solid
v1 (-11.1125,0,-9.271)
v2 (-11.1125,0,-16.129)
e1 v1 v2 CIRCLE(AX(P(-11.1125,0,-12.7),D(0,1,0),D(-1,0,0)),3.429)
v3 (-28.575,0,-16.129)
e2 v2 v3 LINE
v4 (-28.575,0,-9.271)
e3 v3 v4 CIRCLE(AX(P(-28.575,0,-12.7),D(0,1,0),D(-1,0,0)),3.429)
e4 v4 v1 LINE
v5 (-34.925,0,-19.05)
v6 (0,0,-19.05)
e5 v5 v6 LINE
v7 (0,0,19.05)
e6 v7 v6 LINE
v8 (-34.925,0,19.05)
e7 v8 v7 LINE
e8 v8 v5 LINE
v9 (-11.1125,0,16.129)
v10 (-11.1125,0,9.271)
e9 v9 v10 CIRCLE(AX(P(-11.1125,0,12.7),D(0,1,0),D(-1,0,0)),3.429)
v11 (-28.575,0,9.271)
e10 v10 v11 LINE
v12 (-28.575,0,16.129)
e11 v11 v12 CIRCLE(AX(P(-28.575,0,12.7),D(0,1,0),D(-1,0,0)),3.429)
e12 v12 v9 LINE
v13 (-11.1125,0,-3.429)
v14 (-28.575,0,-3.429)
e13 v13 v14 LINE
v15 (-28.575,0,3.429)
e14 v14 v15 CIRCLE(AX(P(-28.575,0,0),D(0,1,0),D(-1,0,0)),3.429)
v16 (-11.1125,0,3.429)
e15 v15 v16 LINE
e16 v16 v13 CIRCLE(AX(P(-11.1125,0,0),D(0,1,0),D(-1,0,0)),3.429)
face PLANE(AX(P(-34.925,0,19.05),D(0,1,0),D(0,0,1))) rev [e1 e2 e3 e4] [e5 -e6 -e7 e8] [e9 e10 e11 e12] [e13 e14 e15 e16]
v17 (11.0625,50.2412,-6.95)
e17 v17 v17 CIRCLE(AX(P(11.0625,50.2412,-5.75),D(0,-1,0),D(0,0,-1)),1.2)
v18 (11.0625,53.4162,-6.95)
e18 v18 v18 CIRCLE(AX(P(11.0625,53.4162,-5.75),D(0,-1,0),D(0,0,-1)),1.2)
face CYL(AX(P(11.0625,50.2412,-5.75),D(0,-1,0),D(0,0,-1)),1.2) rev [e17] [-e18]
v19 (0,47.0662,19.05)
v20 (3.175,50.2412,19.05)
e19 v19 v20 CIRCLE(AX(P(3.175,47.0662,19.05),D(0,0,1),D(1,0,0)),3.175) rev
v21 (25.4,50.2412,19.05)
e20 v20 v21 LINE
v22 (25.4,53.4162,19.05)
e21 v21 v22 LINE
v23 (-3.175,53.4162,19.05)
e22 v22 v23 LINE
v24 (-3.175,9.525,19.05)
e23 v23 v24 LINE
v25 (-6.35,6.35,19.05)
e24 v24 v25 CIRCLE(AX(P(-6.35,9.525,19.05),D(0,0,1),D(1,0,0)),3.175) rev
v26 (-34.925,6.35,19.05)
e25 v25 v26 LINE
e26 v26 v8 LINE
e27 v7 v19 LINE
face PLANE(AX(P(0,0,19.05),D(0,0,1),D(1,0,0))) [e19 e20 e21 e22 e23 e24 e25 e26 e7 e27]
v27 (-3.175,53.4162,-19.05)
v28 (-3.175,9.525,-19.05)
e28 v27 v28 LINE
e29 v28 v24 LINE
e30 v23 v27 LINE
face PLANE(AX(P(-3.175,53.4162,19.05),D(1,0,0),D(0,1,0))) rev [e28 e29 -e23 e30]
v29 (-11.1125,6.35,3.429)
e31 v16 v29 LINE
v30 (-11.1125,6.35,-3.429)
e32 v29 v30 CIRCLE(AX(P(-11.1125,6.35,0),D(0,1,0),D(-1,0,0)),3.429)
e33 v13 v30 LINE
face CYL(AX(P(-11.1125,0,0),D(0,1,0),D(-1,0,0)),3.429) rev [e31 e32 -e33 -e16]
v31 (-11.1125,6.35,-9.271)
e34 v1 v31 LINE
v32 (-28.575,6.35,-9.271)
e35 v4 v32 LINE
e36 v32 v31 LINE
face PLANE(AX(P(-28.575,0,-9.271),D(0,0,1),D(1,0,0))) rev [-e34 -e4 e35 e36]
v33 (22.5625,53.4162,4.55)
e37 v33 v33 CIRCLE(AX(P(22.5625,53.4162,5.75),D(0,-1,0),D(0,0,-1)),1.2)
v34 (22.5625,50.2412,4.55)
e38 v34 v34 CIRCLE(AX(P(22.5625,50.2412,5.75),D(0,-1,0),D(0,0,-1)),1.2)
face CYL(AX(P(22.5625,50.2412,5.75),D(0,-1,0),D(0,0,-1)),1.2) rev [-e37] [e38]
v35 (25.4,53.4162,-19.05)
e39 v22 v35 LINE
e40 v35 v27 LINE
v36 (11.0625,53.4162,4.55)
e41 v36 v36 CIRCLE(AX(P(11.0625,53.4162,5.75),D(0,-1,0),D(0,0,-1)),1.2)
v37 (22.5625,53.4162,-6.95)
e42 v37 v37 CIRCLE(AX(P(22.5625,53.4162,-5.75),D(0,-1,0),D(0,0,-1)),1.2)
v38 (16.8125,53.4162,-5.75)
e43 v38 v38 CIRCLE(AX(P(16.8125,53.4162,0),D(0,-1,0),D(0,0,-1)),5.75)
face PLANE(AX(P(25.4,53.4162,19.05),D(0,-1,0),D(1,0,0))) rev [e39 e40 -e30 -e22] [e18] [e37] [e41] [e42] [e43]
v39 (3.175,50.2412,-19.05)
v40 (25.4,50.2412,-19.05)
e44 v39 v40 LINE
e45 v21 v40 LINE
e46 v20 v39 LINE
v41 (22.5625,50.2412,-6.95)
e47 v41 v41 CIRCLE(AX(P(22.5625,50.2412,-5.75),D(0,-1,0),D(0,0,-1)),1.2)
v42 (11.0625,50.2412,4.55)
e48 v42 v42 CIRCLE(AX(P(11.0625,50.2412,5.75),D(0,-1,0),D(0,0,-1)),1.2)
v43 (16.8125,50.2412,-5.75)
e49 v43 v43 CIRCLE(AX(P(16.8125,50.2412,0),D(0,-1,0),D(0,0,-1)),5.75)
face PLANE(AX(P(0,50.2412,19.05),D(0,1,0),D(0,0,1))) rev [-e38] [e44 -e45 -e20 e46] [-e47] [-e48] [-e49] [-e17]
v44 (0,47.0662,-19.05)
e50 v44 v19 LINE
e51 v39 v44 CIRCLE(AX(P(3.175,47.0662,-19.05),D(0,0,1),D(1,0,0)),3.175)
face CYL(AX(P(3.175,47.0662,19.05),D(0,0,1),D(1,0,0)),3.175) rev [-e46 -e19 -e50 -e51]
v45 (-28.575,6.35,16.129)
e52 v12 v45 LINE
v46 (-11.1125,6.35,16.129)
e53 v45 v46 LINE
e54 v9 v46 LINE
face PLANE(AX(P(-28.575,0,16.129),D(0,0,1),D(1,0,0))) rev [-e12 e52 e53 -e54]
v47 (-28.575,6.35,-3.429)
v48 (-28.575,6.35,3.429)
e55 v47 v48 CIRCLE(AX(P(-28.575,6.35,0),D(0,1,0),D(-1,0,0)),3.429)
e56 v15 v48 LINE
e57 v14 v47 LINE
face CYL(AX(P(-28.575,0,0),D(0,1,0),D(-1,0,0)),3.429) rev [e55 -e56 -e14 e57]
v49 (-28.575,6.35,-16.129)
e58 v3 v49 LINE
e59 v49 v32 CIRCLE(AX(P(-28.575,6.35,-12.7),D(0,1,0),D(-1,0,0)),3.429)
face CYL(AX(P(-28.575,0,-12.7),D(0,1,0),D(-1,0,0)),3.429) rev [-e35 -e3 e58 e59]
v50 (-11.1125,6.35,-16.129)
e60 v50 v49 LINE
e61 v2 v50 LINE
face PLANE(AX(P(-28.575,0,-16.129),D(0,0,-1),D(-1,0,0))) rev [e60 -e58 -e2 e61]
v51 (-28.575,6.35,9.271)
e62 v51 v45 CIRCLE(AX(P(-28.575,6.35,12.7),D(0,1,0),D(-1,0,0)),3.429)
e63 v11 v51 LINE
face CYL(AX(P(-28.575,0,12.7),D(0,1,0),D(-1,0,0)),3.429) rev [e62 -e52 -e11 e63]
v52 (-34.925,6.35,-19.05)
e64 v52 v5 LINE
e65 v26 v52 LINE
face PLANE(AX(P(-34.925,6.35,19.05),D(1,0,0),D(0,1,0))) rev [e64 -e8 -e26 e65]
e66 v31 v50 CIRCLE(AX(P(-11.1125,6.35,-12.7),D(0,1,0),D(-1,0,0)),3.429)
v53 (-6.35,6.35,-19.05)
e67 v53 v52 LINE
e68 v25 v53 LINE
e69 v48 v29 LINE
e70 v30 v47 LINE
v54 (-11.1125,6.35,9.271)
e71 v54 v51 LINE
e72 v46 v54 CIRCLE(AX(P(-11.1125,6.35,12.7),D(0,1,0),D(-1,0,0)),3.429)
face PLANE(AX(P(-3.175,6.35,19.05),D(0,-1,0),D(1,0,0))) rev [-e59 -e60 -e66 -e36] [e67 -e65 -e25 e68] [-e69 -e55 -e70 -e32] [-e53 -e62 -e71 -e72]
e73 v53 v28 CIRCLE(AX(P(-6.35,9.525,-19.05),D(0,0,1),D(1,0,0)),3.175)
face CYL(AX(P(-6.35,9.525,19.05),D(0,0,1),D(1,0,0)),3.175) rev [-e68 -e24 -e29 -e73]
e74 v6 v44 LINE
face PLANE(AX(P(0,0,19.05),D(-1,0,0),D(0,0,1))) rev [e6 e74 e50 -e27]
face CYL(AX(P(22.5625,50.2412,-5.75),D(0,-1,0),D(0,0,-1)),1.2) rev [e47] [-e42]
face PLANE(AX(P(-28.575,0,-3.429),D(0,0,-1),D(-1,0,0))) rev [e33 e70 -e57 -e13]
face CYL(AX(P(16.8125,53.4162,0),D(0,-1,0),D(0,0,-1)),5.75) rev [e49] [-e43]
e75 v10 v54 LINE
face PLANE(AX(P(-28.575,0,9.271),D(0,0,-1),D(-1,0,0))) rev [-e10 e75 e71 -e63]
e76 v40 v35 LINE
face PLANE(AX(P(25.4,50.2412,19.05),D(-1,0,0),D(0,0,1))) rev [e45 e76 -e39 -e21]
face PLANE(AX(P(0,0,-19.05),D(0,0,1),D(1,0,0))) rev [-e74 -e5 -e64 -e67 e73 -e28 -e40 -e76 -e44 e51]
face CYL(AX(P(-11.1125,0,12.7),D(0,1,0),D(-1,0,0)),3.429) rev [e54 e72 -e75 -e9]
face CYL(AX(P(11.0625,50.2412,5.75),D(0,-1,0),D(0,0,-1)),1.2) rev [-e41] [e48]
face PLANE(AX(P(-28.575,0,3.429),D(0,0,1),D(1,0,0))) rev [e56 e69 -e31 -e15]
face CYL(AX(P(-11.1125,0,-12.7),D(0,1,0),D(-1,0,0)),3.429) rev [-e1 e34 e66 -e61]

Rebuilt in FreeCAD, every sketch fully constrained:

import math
import FreeCAD as App
import Part
import Sketcher
from FreeCAD import Vector
Q = App.Units.Quantity


def edges_at(feature, points):
    """Names of the edges that pass closest to the given points."""
    edges = feature.Shape.Edges
    near = lambda p: min(range(len(edges)), key=lambda i: edges[i].distToShape(Part.Vertex(*p))[0])
    return sorted({f"Edge{near(p) + 1}" for p in points})


def add_polygon(sketch, points):
    """Adds a closed chain of lines whose ends are joined by coincident constraints."""
    first, n = sketch.GeometryCount, len(points)
    for a, b in zip(points, points[1:] + points[:1]):
        sketch.addGeometry(Part.LineSegment(App.Vector(*a, 0), App.Vector(*b, 0)), False)
    for i in range(n):
        sketch.addConstraint(Sketcher.Constraint("Coincident", first + i, 2, first + (i + 1) % n, 1))

doc = App.newDocument("Part")
body = doc.addObject("PartDesign::Body", "Body")

sketch1 = body.newObject("Sketcher::SketchObject", "Sketch")
sketch1.AttachmentSupport = (doc.getObject("XY_Plane"), [""])
sketch1.MapMode = "FlatFace"
add_polygon(sketch1, [(-34.9, 0), (0, 0), (0, 50.2), (25.4, 50.2), (25.4, 53.4), (-3.2, 53.4), (-3.2, 6.3), (-34.9, 6.3)])
sketch1.addConstraint(Sketcher.Constraint("Horizontal", 0))
sketch1.addConstraint(Sketcher.Constraint("Vertical", 1))
sketch1.addConstraint(Sketcher.Constraint("Horizontal", 2))
sketch1.addConstraint(Sketcher.Constraint("Vertical", 3))
sketch1.addConstraint(Sketcher.Constraint("Horizontal", 4))
sketch1.addConstraint(Sketcher.Constraint("Vertical", 5))
sketch1.addConstraint(Sketcher.Constraint("Horizontal", 6))
sketch1.addConstraint(Sketcher.Constraint("Vertical", 7))
sketch1.addConstraint(Sketcher.Constraint("Coincident", 0, 2, -1, 1))
sketch1.addConstraint(Sketcher.Constraint("DistanceX", 2, 1, 2, 2, Q("1 in")))
sketch1.addConstraint(Sketcher.Constraint("DistanceX", 6, 2, 6, 1, Q("1.25 in")))
sketch1.addConstraint(Sketcher.Constraint("DistanceY", 7, 2, 7, 1, Q("0.25 in")))
sketch1.addConstraint(Sketcher.Constraint("DistanceX", 0, 1, 0, 2, Q("1.375 in")))
sketch1.addConstraint(Sketcher.Constraint("DistanceY", 1, 1, 1, 2, Q("1.978 in")))
sketch1.addConstraint(Sketcher.Constraint("DistanceY", 3, 1, 3, 2, Q("0.125 in")))
pad1 = body.newObject("PartDesign::Pad", "Pad")
pad1.Profile = sketch1
pad1.Length = Q("1.5 in")
pad1.Midplane = True
doc.recompute()

fillet = body.newObject("PartDesign::Fillet", "Fillet")
fillet.Base = (pad1, edges_at(pad1, [(-3.175, 6.35, 0), (0, 50.241, 0)]))
fillet.Radius = Q("0.125 in")

sketch2 = body.newObject("Sketcher::SketchObject", "Sketch001")
sketch2.AttachmentSupport = (doc.getObject("XZ_Plane"), [""])
sketch2.MapMode = "FlatFace"
sketch2.AttachmentOffset = App.Placement(Vector(0, 0, -1.978 * 25.4), App.Rotation())
sketch2.addGeometry(Part.Circle(Vector(17, 0, 0), Vector(0, 0, 1), 6), False)
sketch2.addConstraint(Sketcher.Constraint("PointOnObject", 0, 3, -1))
sketch2.addConstraint(Sketcher.Constraint("Diameter", 0, Q("11.5 mm")))
sketch2.addConstraint(Sketcher.Constraint("DistanceX", -1, 1, 0, 3, Q("16.8125 mm")))
pocket1 = body.newObject("PartDesign::Pocket", "Pocket")
pocket1.Profile = sketch2
pocket1.Type = "ThroughAll"

sketch3 = body.newObject("Sketcher::SketchObject", "Sketch002")
sketch3.AttachmentSupport = (doc.getObject("XZ_Plane"), [""])
sketch3.MapMode = "FlatFace"
sketch3.AttachmentOffset = App.Placement(Vector(0, 0, -1.978 * 25.4), App.Rotation())
sketch3.addGeometry(Part.Circle(Vector(22.6, 5.8, 0), Vector(0, 0, 1), 1.2), False)
sketch3.addGeometry(Part.Circle(Vector(22.6, -5.8, 0), Vector(0, 0, 1), 1.2), False)
sketch3.addGeometry(Part.Circle(Vector(11.1, -5.8, 0), Vector(0, 0, 1), 1.2), False)
sketch3.addGeometry(Part.Circle(Vector(11.1, 5.8, 0), Vector(0, 0, 1), 1.2), False)
sketch3.addConstraint(Sketcher.Constraint("Equal", 0, 1))
sketch3.addConstraint(Sketcher.Constraint("Equal", 1, 2))
sketch3.addConstraint(Sketcher.Constraint("Equal", 2, 3))
sketch3.addConstraint(Sketcher.Constraint("Symmetric", 0, 3, 1, 3, -1))
sketch3.addConstraint(Sketcher.Constraint("Symmetric", 2, 3, 3, 3, -1))
sketch3.addConstraint(Sketcher.Constraint("Horizontal", 1, 3, 2, 3))
sketch3.addConstraint(Sketcher.Constraint("Diameter", 0, Q("2.4 mm")))
sketch3.addConstraint(Sketcher.Constraint("DistanceX", -1, 1, 0, 3, Q("22.5625 mm")))
sketch3.addConstraint(Sketcher.Constraint("DistanceY", -1, 1, 0, 3, Q("5.75 mm")))
sketch3.addConstraint(Sketcher.Constraint("DistanceX", -1, 1, 2, 3, Q("11.0625 mm")))
doc.recompute()
hole = body.newObject("PartDesign::Hole", "Hole")
hole.Profile = sketch3
hole.ThreadType = "None"
hole.Diameter = 2.4
hole.DepthType = "ThroughAll"

sketch4 = body.newObject("Sketcher::SketchObject", "Sketch003")
sketch4.AttachmentSupport = (doc.getObject("XZ_Plane"), [""])
sketch4.MapMode = "FlatFace"
sketch4.AttachmentOffset = App.Placement(Vector(0, 0, -0.25 * 25.4), App.Rotation())
sketch4.addGeometry(Part.LineSegment(Vector(-11.1, -3.4, 0), Vector(-28.6, -3.4, 0)), False)
sketch4.addGeometry(Part.ArcOfCircle(Part.Circle(Vector(-28.6, 0, 0), Vector(0, 0, 1), 3.4), math.radians(90), math.radians(270)), False)
sketch4.addGeometry(Part.LineSegment(Vector(-28.6, 3.4, 0), Vector(-11.1, 3.4, 0)), False)
sketch4.addGeometry(Part.ArcOfCircle(Part.Circle(Vector(-11.1, 0, 0), Vector(0, 0, 1), 3.4), math.radians(-90), math.radians(90)), False)
sketch4.addConstraint(Sketcher.Constraint("Tangent", 0, 2, 1, 2))
sketch4.addConstraint(Sketcher.Constraint("Tangent", 1, 1, 2, 1))
sketch4.addConstraint(Sketcher.Constraint("Tangent", 2, 2, 3, 2))
sketch4.addConstraint(Sketcher.Constraint("Tangent", 3, 1, 0, 1))
sketch4.addConstraint(Sketcher.Constraint("Horizontal", 0))
sketch4.addConstraint(Sketcher.Constraint("Horizontal", 2))
sketch4.addConstraint(Sketcher.Constraint("PointOnObject", 1, 3, -1))
sketch4.addConstraint(Sketcher.Constraint("Radius", 1, Q("0.135 in")))
sketch4.addConstraint(Sketcher.Constraint("DistanceX", 0, 2, 0, 1, Q("0.6875 in")))
sketch4.addConstraint(Sketcher.Constraint("DistanceX", 1, 3, -1, 1, Q("1.125 in")))
pocket2 = body.newObject("PartDesign::Pocket", "Pocket001")
pocket2.Profile = sketch4
pocket2.Type = "ThroughAll"
pocket2.Reversed = True
doc.recompute()

linearpattern = body.newObject("PartDesign::LinearPattern", "LinearPattern")
linearpattern.Originals = [pocket2]
linearpattern.Direction = (doc.getObject("Z_Axis"), [""])
linearpattern.Mode = "offset"
linearpattern.Offset = Q("0.5 in")
linearpattern.Occurrences = 2
body.Tip = linearpattern
doc.recompute()

linearpattern2 = body.newObject("PartDesign::LinearPattern", "LinearPattern001")
linearpattern2.Originals = [pocket2]
linearpattern2.Direction = (doc.getObject("Z_Axis"), [""])
linearpattern2.Mode = "offset"
linearpattern2.Offset = Q("0.5 in")
linearpattern2.Occurrences = 2
linearpattern2.Reversed = True
body.Tip = linearpattern2

doc.recompute()
